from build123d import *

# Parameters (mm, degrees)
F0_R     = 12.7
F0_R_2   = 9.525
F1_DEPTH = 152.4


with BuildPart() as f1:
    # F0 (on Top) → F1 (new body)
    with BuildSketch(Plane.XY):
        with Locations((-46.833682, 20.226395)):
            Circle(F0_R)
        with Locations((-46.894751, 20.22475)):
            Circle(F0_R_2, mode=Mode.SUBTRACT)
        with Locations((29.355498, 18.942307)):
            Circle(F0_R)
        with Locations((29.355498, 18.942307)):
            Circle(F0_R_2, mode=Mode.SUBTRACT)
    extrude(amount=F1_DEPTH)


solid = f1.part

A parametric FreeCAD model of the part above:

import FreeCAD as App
import Part
import Sketcher
from FreeCAD import Vector
Q = App.Units.Quantity

doc = App.newDocument("Part")
body = doc.addObject("PartDesign::Body", "Body")
body.AllowCompound = True

sketch1 = doc.addObject("Sketcher::SketchObject", "Sketch")
body.addObject(sketch1)
sketch1.AttachmentSupport = (doc.XY_Plane, [""])
sketch1.MapMode = "FlatFace"
sketch1.addGeometry(Part.Circle(Vector(-46.833682, 20.226395, 0), Vector(0, 0, 1), 12.7), False)
sketch1.addGeometry(Part.Circle(Vector(-46.894751, 20.22475, 0), Vector(0, 0, 1), 9.525), False)
sketch1.addGeometry(Part.Circle(Vector(29.355498, 18.942307, 0), Vector(0, 0, 1), 12.7), False)
sketch1.addGeometry(Part.Circle(Vector(29.355498, 18.942307, 0), Vector(0, 0, 1), 9.525), False)
sketch1.addConstraint(Sketcher.Constraint("Coincident", 3, 3, 2, 3))
sketch1.addConstraint(Sketcher.Constraint("Equal", 0, 2))
sketch1.addConstraint(Sketcher.Constraint("Equal", 1, 3))
sketch1.addConstraint(Sketcher.Constraint("Diameter", 0, Q("1 in")))
sketch1.addConstraint(Sketcher.Constraint("Diameter", 1, Q("0.75 in")))
sketch1.addConstraint(Sketcher.Constraint("DistanceX", -1, 1, 2, 3, Q("29.355498 mm")))
sketch1.addConstraint(Sketcher.Constraint("DistanceX", 1, 3, -1, 1, Q("46.894751 mm")))
sketch1.addConstraint(Sketcher.Constraint("DistanceY", -1, 1, 1, 3, Q("20.22475 mm")))
sketch1.addConstraint(Sketcher.Constraint("DistanceX", 1, 3, 0, 3, Q("0.061069 mm")))
sketch1.addConstraint(Sketcher.Constraint("DistanceY", 2, 3, 0, 3, Q("1.284088 mm")))
sketch1.addConstraint(Sketcher.Constraint("DistanceY", -1, 1, 0, 3, Q("20.226395 mm")))
pad1 = doc.addObject("PartDesign::Pad", "Pad")
body.addObject(pad1)
pad1.Profile = sketch1
pad1.Length = Q("6 in")

doc.recompute()
